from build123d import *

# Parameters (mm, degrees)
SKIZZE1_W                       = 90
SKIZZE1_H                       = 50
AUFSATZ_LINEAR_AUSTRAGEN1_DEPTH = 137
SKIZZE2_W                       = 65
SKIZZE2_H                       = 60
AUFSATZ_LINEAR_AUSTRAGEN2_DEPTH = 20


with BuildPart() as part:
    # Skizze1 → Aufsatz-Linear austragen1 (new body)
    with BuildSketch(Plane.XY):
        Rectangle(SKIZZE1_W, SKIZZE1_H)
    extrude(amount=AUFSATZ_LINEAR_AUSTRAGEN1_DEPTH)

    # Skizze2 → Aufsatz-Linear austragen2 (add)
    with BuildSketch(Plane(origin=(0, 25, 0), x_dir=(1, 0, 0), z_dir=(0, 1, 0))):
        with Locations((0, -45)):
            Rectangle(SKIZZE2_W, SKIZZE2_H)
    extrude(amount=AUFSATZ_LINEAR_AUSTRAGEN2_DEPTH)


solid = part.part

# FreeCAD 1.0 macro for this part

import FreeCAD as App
import Part
import Sketcher
from FreeCAD import Vector
Q = App.Units.Quantity

doc = App.newDocument("Part")
body = doc.addObject("PartDesign::Body", "Body")

sketch1 = body.newObject("Sketcher::SketchObject", "Sketch")
sketch1.AttachmentSupport = (doc.getObject("XY_Plane"), [""])
sketch1.MapMode = "FlatFace"
sketch1.addGeometry([
    Part.LineSegment(Vector(-45, 25, 0), Vector(-45, -25, 0)),
    Part.LineSegment(Vector(-45, -25, 0), Vector(45, -25, 0)),
    Part.LineSegment(Vector(45, -25, 0), Vector(45, 25, 0)),
    Part.LineSegment(Vector(45, 25, 0), Vector(-45, 25, 0)),
], False)
sketch1.addConstraint([
    Sketcher.Constraint("Coincident", 0, 2, 1, 1),
    Sketcher.Constraint("Coincident", 1, 2, 2, 1),
    Sketcher.Constraint("Coincident", 2, 2, 3, 1),
    Sketcher.Constraint("Coincident", 3, 2, 0, 1),
    Sketcher.Constraint("Vertical", 0),
    Sketcher.Constraint("Horizontal", 1),
    Sketcher.Constraint("Vertical", 2),
    Sketcher.Constraint("Horizontal", 3),
    Sketcher.Constraint("Symmetric", 0, 2, 2, 2, -1, 1),
    Sketcher.Constraint("DistanceX", 1, 1, 1, 2, Q("90 mm")),
    Sketcher.Constraint("DistanceY", 0, 2, 0, 1, Q("50 mm")),
])
pad1 = body.newObject("PartDesign::Pad", "Pad")
pad1.Profile = sketch1
pad1.Length = 137

sketch2 = body.newObject("Sketcher::SketchObject", "Sketch001")
sketch2.AttachmentSupport = (doc.getObject("XZ_Plane"), [""])
sketch2.MapMode = "FlatFace"
sketch2.AttachmentOffset = App.Placement(Vector(0, 0, -25), App.Rotation())
sketch2.addGeometry([
    Part.LineSegment(Vector(-32, 15, 0), Vector(-32, 75, 0)),
    Part.LineSegment(Vector(-32, 75, 0), Vector(32, 75, 0)),
    Part.LineSegment(Vector(32, 75, 0), Vector(32, 15, 0)),
    Part.LineSegment(Vector(32, 15, 0), Vector(-32, 15, 0)),
], False)
sketch2.addConstraint([
    Sketcher.Constraint("Coincident", 0, 2, 1, 1),
    Sketcher.Constraint("Coincident", 1, 2, 2, 1),
    Sketcher.Constraint("Coincident", 2, 2, 3, 1),
    Sketcher.Constraint("Coincident", 3, 2, 0, 1),
    Sketcher.Constraint("Vertical", 0),
    Sketcher.Constraint("Horizontal", 1),
    Sketcher.Constraint("Vertical", 2),
    Sketcher.Constraint("Horizontal", 3),
    Sketcher.Constraint("DistanceX", 1, 1, 1, 2, Q("65 mm")),
    Sketcher.Constraint("DistanceY", 0, 1, 0, 2, Q("60 mm")),
    Sketcher.Constraint("DistanceY", -1, 1, 0, 2, Q("75 mm")),
    Sketcher.Constraint("DistanceX", 0, 2, -1, 1, Q("32.5 mm")),
])
pad2 = body.newObject("PartDesign::Pad", "Pad001")
pad2.Profile = sketch2
pad2.Length = 20
pad2.Reversed = True

doc.recompute()
